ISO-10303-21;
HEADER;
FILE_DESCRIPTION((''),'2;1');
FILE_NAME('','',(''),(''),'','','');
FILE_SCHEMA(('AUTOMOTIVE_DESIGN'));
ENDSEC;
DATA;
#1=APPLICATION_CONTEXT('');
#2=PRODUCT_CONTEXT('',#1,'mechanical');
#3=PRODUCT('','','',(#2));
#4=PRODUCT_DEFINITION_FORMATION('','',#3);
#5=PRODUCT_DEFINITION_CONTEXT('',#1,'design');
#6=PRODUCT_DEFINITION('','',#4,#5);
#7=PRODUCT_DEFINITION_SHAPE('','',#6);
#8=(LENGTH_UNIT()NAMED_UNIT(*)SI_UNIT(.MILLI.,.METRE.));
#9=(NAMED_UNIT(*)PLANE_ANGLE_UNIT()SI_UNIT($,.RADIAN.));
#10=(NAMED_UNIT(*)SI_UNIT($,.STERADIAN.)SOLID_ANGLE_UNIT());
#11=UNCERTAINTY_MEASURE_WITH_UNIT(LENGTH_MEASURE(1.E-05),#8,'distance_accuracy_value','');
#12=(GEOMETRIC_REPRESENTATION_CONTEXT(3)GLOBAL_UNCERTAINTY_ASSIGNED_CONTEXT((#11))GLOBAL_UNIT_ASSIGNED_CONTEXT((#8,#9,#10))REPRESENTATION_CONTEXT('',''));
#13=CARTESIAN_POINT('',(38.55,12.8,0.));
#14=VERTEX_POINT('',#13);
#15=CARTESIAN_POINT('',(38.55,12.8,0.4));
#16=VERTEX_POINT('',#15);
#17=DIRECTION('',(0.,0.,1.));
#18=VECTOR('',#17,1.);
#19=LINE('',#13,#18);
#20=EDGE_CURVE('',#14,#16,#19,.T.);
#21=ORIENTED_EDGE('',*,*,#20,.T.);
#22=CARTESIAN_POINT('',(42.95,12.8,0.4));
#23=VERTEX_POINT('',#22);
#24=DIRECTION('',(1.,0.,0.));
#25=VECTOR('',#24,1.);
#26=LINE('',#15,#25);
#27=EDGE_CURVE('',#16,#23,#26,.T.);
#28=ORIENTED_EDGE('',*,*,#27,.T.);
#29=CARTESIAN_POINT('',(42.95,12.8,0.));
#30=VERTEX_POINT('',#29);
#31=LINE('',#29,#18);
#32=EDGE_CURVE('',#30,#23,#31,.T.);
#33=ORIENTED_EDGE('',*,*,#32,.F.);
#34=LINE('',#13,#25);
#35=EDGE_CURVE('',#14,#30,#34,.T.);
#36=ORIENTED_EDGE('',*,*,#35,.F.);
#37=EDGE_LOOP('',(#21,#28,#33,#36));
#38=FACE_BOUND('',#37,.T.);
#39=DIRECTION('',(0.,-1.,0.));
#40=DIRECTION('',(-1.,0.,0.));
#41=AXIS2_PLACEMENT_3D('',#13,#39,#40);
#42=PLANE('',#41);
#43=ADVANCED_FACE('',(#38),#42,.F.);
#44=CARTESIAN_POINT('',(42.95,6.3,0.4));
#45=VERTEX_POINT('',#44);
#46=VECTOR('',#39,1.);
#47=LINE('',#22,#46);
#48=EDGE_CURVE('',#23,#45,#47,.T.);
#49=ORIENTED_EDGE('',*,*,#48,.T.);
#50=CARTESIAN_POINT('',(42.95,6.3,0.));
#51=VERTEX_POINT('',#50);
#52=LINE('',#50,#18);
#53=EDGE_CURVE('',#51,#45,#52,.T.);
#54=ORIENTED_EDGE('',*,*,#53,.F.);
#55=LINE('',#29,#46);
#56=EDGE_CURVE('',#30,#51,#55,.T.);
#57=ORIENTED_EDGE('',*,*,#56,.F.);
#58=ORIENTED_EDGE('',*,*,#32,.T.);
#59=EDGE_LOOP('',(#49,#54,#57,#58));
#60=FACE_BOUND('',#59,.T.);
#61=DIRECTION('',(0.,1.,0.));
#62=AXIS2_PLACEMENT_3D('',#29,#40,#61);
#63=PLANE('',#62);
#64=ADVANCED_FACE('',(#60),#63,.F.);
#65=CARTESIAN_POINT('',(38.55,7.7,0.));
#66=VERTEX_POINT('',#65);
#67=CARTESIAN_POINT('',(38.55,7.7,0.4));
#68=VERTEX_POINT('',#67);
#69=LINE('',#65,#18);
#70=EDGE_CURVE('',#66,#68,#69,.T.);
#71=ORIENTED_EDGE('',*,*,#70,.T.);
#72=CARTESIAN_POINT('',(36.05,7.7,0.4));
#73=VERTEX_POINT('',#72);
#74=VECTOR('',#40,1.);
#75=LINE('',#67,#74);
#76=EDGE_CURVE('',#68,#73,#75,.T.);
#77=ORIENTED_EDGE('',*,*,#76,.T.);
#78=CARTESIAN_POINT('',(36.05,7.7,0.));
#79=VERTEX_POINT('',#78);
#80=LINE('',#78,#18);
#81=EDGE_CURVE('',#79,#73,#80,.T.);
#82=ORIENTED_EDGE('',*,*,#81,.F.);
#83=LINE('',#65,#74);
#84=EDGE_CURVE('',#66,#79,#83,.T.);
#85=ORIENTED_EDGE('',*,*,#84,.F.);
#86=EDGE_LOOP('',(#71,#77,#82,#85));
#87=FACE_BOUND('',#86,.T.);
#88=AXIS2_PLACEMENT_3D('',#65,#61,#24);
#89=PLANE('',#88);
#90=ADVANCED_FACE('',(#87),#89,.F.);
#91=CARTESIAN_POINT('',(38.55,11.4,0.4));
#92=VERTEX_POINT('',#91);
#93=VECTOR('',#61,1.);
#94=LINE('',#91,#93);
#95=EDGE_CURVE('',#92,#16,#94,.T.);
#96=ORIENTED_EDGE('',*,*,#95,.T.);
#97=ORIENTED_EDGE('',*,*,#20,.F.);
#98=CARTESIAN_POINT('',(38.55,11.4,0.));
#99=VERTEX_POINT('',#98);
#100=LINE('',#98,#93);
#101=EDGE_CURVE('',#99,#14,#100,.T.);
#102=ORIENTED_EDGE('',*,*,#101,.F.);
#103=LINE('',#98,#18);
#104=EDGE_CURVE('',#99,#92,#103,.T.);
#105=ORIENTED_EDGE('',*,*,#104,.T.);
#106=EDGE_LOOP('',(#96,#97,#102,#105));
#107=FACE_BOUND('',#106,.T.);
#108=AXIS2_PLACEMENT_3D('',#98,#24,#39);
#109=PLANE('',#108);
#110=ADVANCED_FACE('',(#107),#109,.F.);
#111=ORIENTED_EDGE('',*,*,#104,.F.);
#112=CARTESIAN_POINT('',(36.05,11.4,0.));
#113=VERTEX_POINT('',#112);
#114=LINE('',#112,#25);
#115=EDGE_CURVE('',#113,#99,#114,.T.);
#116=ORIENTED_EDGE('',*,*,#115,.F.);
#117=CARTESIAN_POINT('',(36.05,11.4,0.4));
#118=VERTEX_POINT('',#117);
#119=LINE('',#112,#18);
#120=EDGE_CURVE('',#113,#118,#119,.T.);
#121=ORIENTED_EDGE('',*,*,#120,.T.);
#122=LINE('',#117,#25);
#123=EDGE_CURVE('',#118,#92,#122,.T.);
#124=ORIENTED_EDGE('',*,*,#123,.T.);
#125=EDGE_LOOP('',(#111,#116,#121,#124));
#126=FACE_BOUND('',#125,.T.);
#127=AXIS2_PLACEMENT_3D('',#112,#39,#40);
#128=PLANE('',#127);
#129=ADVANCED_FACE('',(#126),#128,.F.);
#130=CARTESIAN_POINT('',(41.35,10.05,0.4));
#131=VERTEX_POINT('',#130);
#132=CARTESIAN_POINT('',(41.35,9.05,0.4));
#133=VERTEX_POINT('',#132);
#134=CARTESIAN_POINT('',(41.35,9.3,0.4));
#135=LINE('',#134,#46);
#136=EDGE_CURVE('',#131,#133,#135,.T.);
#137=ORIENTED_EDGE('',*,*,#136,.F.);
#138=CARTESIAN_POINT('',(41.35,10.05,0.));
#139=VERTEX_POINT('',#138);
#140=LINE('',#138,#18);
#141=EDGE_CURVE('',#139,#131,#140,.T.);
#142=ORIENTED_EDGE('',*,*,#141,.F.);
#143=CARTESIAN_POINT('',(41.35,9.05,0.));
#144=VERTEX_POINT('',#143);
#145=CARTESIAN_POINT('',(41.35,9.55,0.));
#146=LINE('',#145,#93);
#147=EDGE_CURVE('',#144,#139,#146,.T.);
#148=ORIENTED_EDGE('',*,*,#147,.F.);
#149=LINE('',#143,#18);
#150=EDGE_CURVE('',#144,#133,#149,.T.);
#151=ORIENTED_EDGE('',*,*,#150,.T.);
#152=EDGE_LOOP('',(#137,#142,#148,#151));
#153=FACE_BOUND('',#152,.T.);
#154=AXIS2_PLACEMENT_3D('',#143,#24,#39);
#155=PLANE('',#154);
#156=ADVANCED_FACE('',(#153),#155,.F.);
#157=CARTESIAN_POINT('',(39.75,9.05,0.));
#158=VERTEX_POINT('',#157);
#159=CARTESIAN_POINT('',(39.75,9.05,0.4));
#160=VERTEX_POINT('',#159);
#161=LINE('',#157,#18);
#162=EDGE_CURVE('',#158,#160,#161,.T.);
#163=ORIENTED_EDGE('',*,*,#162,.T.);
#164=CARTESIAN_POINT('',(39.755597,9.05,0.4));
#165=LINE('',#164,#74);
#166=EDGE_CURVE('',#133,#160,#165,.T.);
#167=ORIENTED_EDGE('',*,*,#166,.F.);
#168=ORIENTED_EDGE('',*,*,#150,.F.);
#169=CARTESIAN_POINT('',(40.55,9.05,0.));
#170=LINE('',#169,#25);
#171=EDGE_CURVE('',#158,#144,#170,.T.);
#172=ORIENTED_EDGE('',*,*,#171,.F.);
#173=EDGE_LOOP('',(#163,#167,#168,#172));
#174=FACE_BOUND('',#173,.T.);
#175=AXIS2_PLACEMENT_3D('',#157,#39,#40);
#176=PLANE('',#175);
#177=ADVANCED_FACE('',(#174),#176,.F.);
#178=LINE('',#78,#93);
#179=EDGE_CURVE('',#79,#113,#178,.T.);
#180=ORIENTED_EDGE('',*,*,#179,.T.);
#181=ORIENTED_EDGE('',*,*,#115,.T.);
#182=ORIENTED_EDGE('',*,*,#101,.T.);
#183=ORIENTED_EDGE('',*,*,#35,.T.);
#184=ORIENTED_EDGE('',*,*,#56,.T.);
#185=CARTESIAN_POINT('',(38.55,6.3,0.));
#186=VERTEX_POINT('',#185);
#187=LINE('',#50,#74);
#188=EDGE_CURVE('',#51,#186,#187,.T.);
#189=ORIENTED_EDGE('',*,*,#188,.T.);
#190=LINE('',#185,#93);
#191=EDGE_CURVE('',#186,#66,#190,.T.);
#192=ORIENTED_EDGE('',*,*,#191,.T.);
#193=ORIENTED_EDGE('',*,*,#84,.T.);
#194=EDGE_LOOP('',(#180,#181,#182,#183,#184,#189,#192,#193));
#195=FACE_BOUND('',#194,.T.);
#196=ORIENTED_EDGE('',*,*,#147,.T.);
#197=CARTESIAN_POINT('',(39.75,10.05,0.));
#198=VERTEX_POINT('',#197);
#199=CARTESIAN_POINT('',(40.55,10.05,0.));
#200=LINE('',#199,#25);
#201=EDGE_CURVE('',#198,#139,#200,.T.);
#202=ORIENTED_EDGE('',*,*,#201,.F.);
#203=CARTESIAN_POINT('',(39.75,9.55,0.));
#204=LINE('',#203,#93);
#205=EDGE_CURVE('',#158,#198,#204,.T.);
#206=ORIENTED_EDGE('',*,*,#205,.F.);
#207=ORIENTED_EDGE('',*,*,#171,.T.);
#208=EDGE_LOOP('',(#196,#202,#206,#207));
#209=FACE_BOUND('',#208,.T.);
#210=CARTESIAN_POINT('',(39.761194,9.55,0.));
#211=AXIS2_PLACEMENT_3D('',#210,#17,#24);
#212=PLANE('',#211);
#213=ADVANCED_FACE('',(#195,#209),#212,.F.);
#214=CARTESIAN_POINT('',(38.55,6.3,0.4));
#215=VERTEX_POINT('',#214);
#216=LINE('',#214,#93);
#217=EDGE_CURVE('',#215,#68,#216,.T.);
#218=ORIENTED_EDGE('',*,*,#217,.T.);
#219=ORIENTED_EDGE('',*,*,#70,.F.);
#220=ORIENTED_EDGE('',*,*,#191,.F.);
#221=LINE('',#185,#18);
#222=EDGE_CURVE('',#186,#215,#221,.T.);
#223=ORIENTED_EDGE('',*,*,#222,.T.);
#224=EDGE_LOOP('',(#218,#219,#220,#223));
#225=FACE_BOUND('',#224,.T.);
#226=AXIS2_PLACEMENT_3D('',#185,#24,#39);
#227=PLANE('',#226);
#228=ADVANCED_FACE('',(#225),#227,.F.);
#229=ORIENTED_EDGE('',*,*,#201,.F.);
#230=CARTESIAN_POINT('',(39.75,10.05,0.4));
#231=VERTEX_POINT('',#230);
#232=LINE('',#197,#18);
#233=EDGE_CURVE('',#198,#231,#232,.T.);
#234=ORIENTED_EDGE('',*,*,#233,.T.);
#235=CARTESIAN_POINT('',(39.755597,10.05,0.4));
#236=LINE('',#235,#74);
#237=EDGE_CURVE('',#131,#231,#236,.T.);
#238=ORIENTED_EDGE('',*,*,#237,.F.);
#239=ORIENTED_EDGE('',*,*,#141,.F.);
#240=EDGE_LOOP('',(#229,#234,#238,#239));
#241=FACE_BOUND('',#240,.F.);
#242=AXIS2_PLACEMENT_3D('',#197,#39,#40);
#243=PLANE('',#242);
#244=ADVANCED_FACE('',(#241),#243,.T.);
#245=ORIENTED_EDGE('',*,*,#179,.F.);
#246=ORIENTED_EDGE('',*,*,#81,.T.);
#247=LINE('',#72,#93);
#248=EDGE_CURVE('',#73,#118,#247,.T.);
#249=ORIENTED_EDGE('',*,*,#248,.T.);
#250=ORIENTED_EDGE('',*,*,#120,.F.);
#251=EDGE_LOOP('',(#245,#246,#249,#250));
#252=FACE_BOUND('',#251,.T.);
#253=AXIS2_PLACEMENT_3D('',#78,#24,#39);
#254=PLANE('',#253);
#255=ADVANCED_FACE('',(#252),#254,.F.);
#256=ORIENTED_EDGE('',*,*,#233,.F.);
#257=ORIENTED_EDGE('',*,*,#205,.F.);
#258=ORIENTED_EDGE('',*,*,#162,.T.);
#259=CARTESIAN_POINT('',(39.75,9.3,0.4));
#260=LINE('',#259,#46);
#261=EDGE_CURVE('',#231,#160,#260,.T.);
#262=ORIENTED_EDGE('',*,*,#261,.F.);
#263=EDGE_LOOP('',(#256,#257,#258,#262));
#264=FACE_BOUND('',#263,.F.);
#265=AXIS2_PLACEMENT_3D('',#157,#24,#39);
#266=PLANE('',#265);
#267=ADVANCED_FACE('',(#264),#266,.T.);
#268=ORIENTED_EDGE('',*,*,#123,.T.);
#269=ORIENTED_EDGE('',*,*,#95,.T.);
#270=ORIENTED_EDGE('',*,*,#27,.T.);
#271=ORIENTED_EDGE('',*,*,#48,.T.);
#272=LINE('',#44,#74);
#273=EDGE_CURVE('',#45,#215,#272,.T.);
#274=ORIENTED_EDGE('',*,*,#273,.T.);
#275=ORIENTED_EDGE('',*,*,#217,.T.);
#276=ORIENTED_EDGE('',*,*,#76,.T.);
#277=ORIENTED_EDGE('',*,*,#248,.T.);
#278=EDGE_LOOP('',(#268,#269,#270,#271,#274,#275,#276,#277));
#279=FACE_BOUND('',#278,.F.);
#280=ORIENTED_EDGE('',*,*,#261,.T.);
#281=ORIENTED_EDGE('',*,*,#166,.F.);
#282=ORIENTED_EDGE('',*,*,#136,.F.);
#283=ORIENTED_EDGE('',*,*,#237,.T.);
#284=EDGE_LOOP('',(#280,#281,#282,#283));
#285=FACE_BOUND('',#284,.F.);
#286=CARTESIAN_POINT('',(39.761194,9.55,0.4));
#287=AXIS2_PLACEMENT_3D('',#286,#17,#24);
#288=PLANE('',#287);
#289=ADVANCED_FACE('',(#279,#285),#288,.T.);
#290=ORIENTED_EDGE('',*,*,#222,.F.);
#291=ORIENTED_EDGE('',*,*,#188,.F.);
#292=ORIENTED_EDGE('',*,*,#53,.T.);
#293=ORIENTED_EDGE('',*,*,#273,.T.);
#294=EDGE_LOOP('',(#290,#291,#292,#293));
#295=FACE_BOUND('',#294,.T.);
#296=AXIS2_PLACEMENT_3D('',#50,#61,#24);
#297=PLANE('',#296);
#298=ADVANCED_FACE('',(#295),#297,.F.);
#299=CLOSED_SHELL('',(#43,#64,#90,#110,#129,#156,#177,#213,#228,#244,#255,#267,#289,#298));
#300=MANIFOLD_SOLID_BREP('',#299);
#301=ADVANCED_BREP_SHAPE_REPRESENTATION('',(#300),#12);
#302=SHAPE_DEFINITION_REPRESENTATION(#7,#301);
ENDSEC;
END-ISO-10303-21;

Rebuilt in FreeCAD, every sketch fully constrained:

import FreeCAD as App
import Part
import Sketcher

V = App.Vector

doc = App.newDocument("Part")
body = doc.addObject("PartDesign::Body", "Body")

sketch1 = body.newObject("Sketcher::SketchObject", "Sketch")
sketch1.AttachmentSupport = (doc.getObject("XY_Plane"), [""])
sketch1.MapMode = "FlatFace"
sketch1.addGeometry(Part.LineSegment(V(38.5, -11.4, 0), V(36, -11.4, 0)), False)
sketch1.addGeometry(Part.LineSegment(V(36, -11.4, 0), V(36, -7.7, 0)), False)
sketch1.addGeometry(Part.LineSegment(V(36, -7.7, 0), V(38.5, -7.7, 0)), False)
sketch1.addGeometry(Part.LineSegment(V(38.5, -7.7, 0), V(38.5, -6.3, 0)), False)
sketch1.addGeometry(Part.LineSegment(V(38.5, -6.3, 0), V(43, -6.3, 0)), False)
sketch1.addGeometry(Part.LineSegment(V(43, -6.3, 0), V(43, -12.8, 0)), False)
sketch1.addGeometry(Part.LineSegment(V(43, -12.8, 0), V(38.5, -12.8, 0)), False)
sketch1.addGeometry(Part.LineSegment(V(38.5, -12.8, 0), V(38.5, -11.4, 0)), False)
sketch1.addConstraint(Sketcher.Constraint("Coincident", 0, 2, 1, 1))
sketch1.addConstraint(Sketcher.Constraint("Coincident", 1, 2, 2, 1))
sketch1.addConstraint(Sketcher.Constraint("Coincident", 2, 2, 3, 1))
sketch1.addConstraint(Sketcher.Constraint("Coincident", 3, 2, 4, 1))
sketch1.addConstraint(Sketcher.Constraint("Coincident", 4, 2, 5, 1))
sketch1.addConstraint(Sketcher.Constraint("Coincident", 5, 2, 6, 1))
sketch1.addConstraint(Sketcher.Constraint("Coincident", 6, 2, 7, 1))
sketch1.addConstraint(Sketcher.Constraint("Coincident", 7, 2, 0, 1))
sketch1.addConstraint(Sketcher.Constraint("Horizontal", 0))
sketch1.addConstraint(Sketcher.Constraint("Vertical", 1))
sketch1.addConstraint(Sketcher.Constraint("Horizontal", 2))
sketch1.addConstraint(Sketcher.Constraint("Vertical", 3))
sketch1.addConstraint(Sketcher.Constraint("Horizontal", 4))
sketch1.addConstraint(Sketcher.Constraint("Vertical", 5))
sketch1.addConstraint(Sketcher.Constraint("Horizontal", 6))
sketch1.addConstraint(Sketcher.Constraint("Vertical", 7))
sketch1.addConstraint(Sketcher.Constraint("Vertical", 3, 2, 6, 2))
sketch1.addConstraint(Sketcher.Constraint("Equal", 3, 7))
sketch1.addConstraint(Sketcher.Constraint("DistanceX", 0, 2, 0, 1, 2.5))
sketch1.addConstraint(Sketcher.Constraint("DistanceX", 4, 1, 4, 2, 4.4))
sketch1.addConstraint(Sketcher.Constraint("DistanceY", 1, 1, 1, 2, 3.7))
sketch1.addConstraint(Sketcher.Constraint("DistanceY", 3, 1, 3, 2, 1.4))
sketch1.addConstraint(Sketcher.Constraint("DistanceY", 0, 2, -1, 1, 11.4))
sketch1.addConstraint(Sketcher.Constraint("DistanceX", -1, 1, 0, 2, 36.05))
pad1 = body.newObject("PartDesign::Pad", "Pad")
pad1.Profile = sketch1
pad1.Length = 0.4

sketch2 = body.newObject("Sketcher::SketchObject", "Sketch001")
sketch2.AttachmentSupport = (doc.getObject("XY_Plane"), [""])
sketch2.MapMode = "FlatFace"
sketch2.addGeometry(Part.LineSegment(V(39.8, -10.1, 0), V(39.8, -9.1, 0)), False)
sketch2.addGeometry(Part.LineSegment(V(39.8, -9.1, 0), V(41.4, -9.1, 0)), False)
sketch2.addGeometry(Part.LineSegment(V(41.4, -9.1, 0), V(41.4, -10.1, 0)), False)
sketch2.addGeometry(Part.LineSegment(V(41.4, -10.1, 0), V(39.8, -10.1, 0)), False)
sketch2.addConstraint(Sketcher.Constraint("Coincident", 0, 2, 1, 1))
sketch2.addConstraint(Sketcher.Constraint("Coincident", 1, 2, 2, 1))
sketch2.addConstraint(Sketcher.Constraint("Coincident", 2, 2, 3, 1))
sketch2.addConstraint(Sketcher.Constraint("Coincident", 3, 2, 0, 1))
sketch2.addConstraint(Sketcher.Constraint("Vertical", 0))
sketch2.addConstraint(Sketcher.Constraint("Horizontal", 1))
sketch2.addConstraint(Sketcher.Constraint("Vertical", 2))
sketch2.addConstraint(Sketcher.Constraint("Horizontal", 3))
sketch2.addConstraint(Sketcher.Constraint("DistanceY", 0, 1, 0, 2, 1.0))
sketch2.addConstraint(Sketcher.Constraint("DistanceX", 1, 1, 1, 2, 1.6))
sketch2.addConstraint(Sketcher.Constraint("DistanceX", -1, 1, 0, 2, 39.75))
sketch2.addConstraint(Sketcher.Constraint("DistanceY", 0, 2, -1, 1, 9.05))
pocket1 = body.newObject("PartDesign::Pocket", "Pocket")
pocket1.Profile = sketch2
pocket1.Type = "ThroughAll"
pocket1.Reversed = True
body2 = doc.addObject("PartDesign::Body", "Body001")
doc.recompute()

mirroring = doc.addObject("Part::Mirroring", "Mirroring")
mirroring.Source = body
mirroring.Base = V(-38.55, 0, 15)
mirroring.Normal = V(0, -1, 0)
body2.BaseFeature = mirroring
doc.recompute()
body.Visibility = False
mirroring.Visibility = False

doc.recompute()
